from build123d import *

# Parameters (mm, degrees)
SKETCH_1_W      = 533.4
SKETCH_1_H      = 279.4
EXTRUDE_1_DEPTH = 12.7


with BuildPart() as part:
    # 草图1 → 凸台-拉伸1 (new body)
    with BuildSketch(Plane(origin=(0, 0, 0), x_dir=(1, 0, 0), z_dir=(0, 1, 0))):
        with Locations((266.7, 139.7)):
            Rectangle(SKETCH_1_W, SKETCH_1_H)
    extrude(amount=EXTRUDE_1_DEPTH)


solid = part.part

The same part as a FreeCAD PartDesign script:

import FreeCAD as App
import Part
import Sketcher
from FreeCAD import Vector
Q = App.Units.Quantity

doc = App.newDocument("Part")
body = doc.addObject("PartDesign::Body", "Body")

# Sketch on XZ plane
sketch1 = doc.addObject("Sketcher::SketchObject", "Sketch")
body.addObject(sketch1)
sketch1.AttachmentSupport = (doc.XZ_Plane, [""])
sketch1.MapMode = "FlatFace"
sketch1.addGeometry([
    Part.LineSegment(Vector(0, -279, 0), Vector(0, 0, 0)),
    Part.LineSegment(Vector(0, 0, 0), Vector(533, 0, 0)),
    Part.LineSegment(Vector(533, 0, 0), Vector(533, -279, 0)),
    Part.LineSegment(Vector(533, -279, 0), Vector(0, -279, 0)),
], False)
sketch1.addConstraint([
    Sketcher.Constraint("Coincident", 0, 2, 1, 1),
    Sketcher.Constraint("Coincident", 1, 2, 2, 1),
    Sketcher.Constraint("Coincident", 2, 2, 3, 1),
    Sketcher.Constraint("Coincident", 3, 2, 0, 1),
    Sketcher.Constraint("Vertical", 0),
    Sketcher.Constraint("Horizontal", 1),
    Sketcher.Constraint("Vertical", 2),
    Sketcher.Constraint("Horizontal", 3),
    Sketcher.Constraint("Coincident", 0, 2, -1, 1),
    Sketcher.Constraint("DistanceX", 1, 1, 1, 2, Q("21 in")),
    Sketcher.Constraint("DistanceY", 0, 1, 0, 2, Q("11 in")),
])
pad1 = doc.addObject("PartDesign::Pad", "Pad")
body.addObject(pad1)
pad1.Profile = sketch1
pad1.Length = Q("0.5 in")
pad1.Reversed = True

doc.recompute()
